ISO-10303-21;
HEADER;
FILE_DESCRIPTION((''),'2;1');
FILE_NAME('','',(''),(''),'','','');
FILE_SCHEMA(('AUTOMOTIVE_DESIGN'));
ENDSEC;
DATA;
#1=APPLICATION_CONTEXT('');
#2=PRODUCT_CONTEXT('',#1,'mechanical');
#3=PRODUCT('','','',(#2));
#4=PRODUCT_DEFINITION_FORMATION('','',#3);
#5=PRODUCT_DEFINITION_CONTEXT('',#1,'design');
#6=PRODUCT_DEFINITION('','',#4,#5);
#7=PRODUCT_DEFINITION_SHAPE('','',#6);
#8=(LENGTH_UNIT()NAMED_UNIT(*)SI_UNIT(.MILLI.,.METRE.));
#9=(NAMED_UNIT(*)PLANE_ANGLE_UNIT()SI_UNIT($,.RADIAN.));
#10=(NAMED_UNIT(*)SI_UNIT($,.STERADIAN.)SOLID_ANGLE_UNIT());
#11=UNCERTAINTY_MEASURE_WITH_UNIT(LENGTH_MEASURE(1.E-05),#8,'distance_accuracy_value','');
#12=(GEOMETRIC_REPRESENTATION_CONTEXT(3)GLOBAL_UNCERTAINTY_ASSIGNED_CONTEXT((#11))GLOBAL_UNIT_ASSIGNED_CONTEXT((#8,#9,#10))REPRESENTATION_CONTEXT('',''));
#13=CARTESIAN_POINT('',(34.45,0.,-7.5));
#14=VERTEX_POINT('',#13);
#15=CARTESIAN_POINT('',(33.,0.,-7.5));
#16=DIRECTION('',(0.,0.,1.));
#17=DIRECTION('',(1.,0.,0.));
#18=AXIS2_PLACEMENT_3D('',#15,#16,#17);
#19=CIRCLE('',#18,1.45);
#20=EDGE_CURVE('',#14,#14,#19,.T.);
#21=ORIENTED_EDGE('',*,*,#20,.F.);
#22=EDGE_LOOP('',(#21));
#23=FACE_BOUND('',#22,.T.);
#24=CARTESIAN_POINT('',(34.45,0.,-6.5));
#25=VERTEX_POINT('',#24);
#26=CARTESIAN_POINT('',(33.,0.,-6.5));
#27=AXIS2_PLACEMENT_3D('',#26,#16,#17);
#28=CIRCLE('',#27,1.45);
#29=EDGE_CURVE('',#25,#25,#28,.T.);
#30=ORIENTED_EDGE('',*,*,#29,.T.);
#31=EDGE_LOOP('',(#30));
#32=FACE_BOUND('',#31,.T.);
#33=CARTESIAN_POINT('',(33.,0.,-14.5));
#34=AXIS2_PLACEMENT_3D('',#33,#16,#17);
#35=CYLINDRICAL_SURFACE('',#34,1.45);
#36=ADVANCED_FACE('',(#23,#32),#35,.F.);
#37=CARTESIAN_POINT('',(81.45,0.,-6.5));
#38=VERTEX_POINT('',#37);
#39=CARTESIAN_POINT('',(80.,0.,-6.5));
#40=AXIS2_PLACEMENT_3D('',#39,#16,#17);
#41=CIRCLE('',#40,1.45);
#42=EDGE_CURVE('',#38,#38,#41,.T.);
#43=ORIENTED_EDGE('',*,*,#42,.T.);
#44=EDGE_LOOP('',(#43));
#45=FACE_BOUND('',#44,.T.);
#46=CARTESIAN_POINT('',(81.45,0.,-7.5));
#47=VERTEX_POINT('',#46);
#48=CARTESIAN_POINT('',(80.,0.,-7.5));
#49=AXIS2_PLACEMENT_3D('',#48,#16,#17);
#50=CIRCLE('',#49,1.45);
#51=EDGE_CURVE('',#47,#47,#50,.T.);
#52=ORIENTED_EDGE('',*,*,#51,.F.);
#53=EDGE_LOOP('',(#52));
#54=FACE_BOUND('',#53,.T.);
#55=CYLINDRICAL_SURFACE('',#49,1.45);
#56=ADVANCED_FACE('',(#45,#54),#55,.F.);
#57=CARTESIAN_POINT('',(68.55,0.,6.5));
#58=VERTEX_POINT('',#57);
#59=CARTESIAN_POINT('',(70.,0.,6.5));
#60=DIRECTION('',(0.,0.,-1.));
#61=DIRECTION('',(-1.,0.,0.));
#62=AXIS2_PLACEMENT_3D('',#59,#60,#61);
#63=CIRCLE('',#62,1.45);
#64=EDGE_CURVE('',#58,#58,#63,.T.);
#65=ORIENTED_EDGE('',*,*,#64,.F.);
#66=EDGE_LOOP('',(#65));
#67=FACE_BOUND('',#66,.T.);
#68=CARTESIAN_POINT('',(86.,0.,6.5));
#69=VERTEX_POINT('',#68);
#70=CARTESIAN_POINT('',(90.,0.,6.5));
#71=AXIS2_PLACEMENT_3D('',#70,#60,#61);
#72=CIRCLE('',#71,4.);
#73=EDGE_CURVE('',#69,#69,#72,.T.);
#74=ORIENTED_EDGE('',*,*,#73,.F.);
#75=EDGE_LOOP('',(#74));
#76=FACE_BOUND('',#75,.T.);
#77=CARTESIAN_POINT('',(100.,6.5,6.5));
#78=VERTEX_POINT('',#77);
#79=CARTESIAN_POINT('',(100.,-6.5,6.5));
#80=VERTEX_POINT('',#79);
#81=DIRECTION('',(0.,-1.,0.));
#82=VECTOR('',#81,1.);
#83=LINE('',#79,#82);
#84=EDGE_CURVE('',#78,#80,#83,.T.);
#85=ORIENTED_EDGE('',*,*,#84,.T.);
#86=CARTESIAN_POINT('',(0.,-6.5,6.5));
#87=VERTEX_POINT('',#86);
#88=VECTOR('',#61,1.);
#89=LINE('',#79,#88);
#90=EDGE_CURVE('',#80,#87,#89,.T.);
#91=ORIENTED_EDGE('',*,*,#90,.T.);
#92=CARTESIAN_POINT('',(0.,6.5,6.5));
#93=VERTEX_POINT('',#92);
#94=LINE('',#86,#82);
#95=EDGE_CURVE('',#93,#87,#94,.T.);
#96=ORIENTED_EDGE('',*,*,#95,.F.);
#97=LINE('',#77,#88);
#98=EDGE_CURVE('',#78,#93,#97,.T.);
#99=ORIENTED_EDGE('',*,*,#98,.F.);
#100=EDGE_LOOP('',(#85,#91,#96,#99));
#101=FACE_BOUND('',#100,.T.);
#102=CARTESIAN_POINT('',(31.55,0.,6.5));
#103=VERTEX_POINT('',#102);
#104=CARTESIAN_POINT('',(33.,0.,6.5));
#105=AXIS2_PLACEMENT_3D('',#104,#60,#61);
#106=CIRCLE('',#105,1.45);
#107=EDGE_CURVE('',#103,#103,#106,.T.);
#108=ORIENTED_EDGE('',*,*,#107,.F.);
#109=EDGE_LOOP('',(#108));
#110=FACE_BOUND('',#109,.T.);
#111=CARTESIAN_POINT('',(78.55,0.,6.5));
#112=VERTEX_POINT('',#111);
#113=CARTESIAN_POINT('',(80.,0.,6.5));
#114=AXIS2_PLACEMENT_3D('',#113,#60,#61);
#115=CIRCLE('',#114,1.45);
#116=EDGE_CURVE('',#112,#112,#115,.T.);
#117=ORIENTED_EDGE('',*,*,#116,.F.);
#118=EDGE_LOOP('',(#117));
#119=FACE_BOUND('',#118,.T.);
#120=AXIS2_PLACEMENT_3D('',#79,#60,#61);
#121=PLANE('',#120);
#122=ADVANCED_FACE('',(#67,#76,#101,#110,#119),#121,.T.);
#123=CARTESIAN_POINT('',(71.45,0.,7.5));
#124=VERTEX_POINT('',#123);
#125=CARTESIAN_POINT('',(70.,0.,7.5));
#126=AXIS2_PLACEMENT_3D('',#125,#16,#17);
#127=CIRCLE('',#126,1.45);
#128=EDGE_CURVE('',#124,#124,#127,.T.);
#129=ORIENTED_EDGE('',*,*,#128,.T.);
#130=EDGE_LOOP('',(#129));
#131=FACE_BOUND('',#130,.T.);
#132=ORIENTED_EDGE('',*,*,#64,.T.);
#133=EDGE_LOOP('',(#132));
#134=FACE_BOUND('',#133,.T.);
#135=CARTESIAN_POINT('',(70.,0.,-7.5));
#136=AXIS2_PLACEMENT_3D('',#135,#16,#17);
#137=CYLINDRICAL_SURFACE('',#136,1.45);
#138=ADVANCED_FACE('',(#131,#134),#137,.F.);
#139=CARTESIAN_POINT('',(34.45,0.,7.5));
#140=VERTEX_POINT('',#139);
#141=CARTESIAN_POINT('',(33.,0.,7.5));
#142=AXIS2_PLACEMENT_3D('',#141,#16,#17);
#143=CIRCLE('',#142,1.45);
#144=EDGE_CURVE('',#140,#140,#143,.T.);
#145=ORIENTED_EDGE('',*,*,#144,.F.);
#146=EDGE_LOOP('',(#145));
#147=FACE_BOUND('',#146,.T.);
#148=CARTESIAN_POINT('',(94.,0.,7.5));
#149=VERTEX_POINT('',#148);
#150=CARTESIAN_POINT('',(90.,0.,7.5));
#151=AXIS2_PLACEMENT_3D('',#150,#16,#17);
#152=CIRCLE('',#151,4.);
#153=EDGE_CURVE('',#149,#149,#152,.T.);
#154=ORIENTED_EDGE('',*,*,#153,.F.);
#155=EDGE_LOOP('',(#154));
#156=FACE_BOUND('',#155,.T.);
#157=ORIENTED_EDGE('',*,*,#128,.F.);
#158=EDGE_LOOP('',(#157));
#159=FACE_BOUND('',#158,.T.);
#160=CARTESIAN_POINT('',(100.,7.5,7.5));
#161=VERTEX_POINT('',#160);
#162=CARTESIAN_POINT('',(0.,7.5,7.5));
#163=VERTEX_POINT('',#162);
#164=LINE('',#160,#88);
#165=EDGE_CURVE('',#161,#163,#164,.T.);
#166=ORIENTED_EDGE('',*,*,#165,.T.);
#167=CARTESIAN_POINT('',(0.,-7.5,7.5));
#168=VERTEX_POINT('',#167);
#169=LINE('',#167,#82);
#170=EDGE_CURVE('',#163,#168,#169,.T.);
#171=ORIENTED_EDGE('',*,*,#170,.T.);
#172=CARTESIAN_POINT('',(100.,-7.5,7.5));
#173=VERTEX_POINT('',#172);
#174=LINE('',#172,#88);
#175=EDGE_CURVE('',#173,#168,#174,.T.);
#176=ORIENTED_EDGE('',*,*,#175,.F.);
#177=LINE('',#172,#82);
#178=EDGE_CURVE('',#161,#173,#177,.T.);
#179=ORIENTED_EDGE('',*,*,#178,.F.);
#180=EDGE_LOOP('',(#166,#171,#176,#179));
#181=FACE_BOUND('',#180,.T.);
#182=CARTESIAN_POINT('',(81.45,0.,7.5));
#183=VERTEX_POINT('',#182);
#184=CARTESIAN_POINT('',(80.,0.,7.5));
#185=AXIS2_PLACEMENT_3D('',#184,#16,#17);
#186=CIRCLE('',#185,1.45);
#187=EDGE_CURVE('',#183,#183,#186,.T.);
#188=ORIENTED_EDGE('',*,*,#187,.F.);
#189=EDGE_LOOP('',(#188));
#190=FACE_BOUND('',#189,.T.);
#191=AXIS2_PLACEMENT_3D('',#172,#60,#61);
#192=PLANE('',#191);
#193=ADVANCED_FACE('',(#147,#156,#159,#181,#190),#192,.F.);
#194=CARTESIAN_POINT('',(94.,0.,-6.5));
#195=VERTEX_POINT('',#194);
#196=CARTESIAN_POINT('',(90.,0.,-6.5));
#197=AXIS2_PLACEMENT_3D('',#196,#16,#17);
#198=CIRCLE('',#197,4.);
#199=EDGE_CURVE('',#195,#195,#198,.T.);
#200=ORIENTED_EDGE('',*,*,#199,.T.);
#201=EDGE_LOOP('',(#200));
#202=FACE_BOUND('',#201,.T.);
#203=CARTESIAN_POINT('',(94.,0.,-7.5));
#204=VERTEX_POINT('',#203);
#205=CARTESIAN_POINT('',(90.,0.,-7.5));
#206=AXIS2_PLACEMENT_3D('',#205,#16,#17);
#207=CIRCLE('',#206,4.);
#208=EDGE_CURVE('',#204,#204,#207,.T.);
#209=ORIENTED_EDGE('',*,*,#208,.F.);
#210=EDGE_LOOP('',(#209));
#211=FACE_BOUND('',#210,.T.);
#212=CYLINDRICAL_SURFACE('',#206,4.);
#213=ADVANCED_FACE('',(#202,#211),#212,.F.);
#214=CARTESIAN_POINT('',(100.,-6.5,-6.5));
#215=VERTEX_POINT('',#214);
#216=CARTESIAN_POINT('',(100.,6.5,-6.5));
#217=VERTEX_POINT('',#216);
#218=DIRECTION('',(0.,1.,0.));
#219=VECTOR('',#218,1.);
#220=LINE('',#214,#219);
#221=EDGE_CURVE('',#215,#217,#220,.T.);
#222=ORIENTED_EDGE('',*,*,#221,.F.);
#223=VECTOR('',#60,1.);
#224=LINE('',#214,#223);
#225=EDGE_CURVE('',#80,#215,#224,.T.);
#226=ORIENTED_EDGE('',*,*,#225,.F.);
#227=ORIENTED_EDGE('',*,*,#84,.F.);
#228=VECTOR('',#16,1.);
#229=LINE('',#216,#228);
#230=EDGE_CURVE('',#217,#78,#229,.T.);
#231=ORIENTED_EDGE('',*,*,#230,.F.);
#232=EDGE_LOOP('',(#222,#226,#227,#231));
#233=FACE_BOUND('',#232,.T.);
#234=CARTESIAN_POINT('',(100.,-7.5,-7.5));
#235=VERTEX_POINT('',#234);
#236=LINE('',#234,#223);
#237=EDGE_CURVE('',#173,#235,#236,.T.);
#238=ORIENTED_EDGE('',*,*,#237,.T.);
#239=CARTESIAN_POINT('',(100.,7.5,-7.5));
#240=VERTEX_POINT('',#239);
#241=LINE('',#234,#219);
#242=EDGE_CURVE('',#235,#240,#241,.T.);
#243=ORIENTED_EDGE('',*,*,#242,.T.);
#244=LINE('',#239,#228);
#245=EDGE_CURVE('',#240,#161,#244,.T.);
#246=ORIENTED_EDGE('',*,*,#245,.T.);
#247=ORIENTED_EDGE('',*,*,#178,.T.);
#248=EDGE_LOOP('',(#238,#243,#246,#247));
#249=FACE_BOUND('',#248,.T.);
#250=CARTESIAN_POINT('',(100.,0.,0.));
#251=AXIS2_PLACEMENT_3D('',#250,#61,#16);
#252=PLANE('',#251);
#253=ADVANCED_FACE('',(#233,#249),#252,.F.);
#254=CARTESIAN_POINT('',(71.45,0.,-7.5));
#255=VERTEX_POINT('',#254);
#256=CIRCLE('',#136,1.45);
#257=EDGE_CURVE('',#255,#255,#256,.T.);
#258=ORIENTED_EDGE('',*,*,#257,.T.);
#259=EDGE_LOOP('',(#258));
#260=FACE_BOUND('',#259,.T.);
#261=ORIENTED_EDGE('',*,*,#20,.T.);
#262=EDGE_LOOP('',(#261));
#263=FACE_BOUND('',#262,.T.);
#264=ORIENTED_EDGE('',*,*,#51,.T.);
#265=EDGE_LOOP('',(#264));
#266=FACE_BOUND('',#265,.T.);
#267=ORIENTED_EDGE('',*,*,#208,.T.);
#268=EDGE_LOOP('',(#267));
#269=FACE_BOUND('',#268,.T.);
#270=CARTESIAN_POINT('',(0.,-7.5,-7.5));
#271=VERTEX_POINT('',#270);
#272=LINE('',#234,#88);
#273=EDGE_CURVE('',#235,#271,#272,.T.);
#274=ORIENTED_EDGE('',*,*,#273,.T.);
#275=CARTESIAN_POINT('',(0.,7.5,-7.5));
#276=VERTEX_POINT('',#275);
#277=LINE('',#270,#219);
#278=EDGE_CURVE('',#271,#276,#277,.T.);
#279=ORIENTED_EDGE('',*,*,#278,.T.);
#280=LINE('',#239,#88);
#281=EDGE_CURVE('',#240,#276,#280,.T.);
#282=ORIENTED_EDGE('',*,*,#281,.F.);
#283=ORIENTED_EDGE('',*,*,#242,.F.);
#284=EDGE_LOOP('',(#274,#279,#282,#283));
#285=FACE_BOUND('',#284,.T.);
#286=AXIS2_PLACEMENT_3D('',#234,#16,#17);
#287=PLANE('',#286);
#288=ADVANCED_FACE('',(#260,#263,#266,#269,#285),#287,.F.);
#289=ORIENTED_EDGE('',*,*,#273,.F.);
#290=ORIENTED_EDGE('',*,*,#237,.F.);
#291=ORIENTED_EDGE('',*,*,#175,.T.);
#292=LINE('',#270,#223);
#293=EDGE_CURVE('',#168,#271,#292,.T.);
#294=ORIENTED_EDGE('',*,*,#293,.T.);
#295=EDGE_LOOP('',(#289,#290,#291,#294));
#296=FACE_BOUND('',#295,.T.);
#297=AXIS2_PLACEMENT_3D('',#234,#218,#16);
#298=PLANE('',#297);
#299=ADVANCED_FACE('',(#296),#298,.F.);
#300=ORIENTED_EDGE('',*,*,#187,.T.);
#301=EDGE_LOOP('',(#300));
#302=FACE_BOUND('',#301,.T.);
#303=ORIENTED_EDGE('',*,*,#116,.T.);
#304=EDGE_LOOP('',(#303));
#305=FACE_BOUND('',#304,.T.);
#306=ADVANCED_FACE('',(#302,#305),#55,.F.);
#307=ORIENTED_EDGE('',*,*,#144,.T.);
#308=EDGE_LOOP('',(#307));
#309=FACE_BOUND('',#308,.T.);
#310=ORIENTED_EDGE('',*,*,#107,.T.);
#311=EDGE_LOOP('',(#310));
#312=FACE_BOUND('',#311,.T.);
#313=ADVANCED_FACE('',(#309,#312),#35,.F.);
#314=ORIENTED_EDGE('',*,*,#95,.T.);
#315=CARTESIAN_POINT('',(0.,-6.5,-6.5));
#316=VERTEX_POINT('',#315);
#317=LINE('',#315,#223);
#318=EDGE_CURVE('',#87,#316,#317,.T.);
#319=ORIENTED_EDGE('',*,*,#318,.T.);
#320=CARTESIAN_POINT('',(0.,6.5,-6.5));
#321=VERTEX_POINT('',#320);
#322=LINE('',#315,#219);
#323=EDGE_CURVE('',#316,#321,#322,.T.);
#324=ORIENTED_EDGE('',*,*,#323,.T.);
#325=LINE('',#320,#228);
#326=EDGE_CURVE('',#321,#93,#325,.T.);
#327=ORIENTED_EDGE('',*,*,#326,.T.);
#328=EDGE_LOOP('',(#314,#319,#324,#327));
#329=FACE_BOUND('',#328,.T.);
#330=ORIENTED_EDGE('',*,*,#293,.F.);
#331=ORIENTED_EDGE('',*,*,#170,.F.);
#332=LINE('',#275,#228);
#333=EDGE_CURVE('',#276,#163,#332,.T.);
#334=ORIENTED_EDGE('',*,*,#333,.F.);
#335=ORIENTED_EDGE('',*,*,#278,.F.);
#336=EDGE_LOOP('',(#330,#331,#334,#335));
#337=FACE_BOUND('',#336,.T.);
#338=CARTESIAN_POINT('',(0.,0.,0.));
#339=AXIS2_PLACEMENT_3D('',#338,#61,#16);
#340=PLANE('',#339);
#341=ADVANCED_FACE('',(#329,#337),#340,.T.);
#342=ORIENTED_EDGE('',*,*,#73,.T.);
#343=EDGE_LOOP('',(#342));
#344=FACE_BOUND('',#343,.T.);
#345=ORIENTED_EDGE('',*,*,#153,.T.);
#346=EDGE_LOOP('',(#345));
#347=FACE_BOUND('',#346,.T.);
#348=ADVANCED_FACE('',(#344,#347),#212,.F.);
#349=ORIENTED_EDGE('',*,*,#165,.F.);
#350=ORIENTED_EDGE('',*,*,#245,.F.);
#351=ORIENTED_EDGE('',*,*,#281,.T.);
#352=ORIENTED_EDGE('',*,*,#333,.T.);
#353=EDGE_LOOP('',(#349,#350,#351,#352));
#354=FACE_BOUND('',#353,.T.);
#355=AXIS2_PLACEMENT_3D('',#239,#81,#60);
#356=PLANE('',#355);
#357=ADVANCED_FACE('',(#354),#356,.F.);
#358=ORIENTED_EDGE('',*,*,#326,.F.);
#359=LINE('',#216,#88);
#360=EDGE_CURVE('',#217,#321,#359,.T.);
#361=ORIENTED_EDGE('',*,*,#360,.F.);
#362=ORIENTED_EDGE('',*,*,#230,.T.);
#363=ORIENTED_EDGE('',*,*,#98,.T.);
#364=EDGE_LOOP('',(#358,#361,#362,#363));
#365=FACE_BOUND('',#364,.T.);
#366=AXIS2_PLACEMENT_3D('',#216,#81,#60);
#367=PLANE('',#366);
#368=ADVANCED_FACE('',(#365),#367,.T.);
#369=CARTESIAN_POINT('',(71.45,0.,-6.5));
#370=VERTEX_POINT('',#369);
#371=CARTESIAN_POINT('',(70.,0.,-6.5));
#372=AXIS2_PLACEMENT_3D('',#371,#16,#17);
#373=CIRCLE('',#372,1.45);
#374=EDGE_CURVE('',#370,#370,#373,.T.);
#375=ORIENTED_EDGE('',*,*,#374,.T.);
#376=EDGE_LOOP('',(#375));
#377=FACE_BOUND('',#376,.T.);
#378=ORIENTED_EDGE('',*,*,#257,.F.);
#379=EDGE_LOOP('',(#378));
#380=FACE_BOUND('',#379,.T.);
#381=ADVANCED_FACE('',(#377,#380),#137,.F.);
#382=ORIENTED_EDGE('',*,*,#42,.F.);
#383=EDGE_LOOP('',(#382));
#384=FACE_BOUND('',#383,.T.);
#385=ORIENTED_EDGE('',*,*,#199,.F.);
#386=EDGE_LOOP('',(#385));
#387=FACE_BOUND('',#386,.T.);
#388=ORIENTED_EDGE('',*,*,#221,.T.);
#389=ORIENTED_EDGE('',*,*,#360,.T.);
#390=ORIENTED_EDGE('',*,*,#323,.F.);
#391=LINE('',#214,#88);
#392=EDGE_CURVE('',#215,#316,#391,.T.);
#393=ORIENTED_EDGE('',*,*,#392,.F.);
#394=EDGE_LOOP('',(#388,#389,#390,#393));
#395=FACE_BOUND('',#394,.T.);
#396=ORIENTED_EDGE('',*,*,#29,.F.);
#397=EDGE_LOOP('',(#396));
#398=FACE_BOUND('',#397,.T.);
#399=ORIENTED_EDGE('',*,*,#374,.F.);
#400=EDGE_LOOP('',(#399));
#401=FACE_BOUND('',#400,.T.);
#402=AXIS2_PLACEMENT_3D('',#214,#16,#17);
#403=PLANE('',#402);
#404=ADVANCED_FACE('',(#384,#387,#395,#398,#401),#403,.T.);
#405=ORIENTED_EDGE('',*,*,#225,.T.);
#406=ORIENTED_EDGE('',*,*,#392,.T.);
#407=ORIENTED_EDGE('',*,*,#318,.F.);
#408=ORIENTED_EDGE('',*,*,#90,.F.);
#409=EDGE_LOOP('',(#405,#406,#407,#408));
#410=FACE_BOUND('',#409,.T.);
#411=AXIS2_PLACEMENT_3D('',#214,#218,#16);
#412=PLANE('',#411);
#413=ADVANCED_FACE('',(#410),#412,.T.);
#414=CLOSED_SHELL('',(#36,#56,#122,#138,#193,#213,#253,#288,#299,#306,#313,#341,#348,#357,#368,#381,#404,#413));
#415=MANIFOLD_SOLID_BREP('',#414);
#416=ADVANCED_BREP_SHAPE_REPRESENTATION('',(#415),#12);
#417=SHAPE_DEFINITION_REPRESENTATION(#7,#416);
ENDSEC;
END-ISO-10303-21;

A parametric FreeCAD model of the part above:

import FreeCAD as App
import Part
import Sketcher

doc = App.newDocument("Part")
body = doc.addObject("PartDesign::Body", "Body")

# Sketch on YZ plane
sketch1 = body.newObject("Sketcher::SketchObject", "Sketch")
sketch1.AttachmentSupport = (doc.getObject("YZ_Plane"), [""])
sketch1.MapMode = "FlatFace"
sketch1.addGeometry([
    Part.LineSegment(App.Vector(-8, 8, 0), App.Vector(-8, -8, 0)),  # 0
    Part.LineSegment(App.Vector(-8, -8, 0), App.Vector(8, -8, 0)),  # 1
    Part.LineSegment(App.Vector(8, -8, 0), App.Vector(8, 8, 0)),  # 2
    Part.LineSegment(App.Vector(8, 8, 0), App.Vector(-8, 8, 0)),  # 3
    Part.LineSegment(App.Vector(6, -6, 0), App.Vector(-6, -6, 0)),  # 4
    Part.LineSegment(App.Vector(-6, -6, 0), App.Vector(-6, 6, 0)),  # 5
    Part.LineSegment(App.Vector(-6, 6, 0), App.Vector(6, 6, 0)),  # 6
    Part.LineSegment(App.Vector(6, 6, 0), App.Vector(6, -6, 0)),  # 7
], False)
sketch1.addConstraint([
    Sketcher.Constraint("Coincident", 0, 2, 1, 1),
    Sketcher.Constraint("Coincident", 1, 2, 2, 1),
    Sketcher.Constraint("Coincident", 2, 2, 3, 1),
    Sketcher.Constraint("Coincident", 3, 2, 0, 1),
    Sketcher.Constraint("Coincident", 4, 2, 5, 1),
    Sketcher.Constraint("Coincident", 5, 2, 6, 1),
    Sketcher.Constraint("Coincident", 6, 2, 7, 1),
    Sketcher.Constraint("Coincident", 7, 2, 4, 1),
    Sketcher.Constraint("Vertical", 0),
    Sketcher.Constraint("Horizontal", 1),
    Sketcher.Constraint("Vertical", 2),
    Sketcher.Constraint("Horizontal", 3),
    Sketcher.Constraint("Horizontal", 4),
    Sketcher.Constraint("Vertical", 5),
    Sketcher.Constraint("Horizontal", 6),
    Sketcher.Constraint("Vertical", 7),
    Sketcher.Constraint("Symmetric", 0, 2, 2, 2, -1, 1),
    Sketcher.Constraint("Symmetric", 4, 2, 6, 2, -1, 1),
    Sketcher.Constraint("Equal", 3, 0),
    Sketcher.Constraint("Equal", 6, 5),
    Sketcher.Constraint("DistanceX", 1, 1, 1, 2, 15.0),
    Sketcher.Constraint("DistanceX", 4, 2, 4, 1, 13.0),
])
pad1 = body.newObject("PartDesign::Pad", "Pad")
pad1.Profile = sketch1
pad1.Length = 100

# Sketch on XY plane
sketch2 = body.newObject("Sketcher::SketchObject", "Sketch001")
sketch2.AttachmentSupport = (doc.getObject("XY_Plane"), [""])
sketch2.MapMode = "FlatFace"
sketch2.AttachmentOffset = App.Placement(App.Vector(0, 0, 7.5), App.Rotation())
sketch2.addGeometry(Part.Circle(App.Vector(33, 0, 0), App.Vector(0, 0, 1), 1.4), False)
sketch2.addConstraint([
    Sketcher.Constraint("PointOnObject", 0, 3, -1),
    Sketcher.Constraint("Diameter", 0, 2.9),
    Sketcher.Constraint("DistanceX", -1, 1, 0, 3, 33.0),
])
pocket1 = body.newObject("PartDesign::Pocket", "Pocket")
pocket1.Profile = sketch2
pocket1.Length = 22

# Sketch on XY plane
sketch3 = body.newObject("Sketcher::SketchObject", "Sketch002")
sketch3.AttachmentSupport = (doc.getObject("XY_Plane"), [""])
sketch3.MapMode = "FlatFace"
sketch3.AttachmentOffset = App.Placement(App.Vector(0, 0, 7.5), App.Rotation())
sketch3.addGeometry([
    Part.Circle(App.Vector(90, 0, 0), App.Vector(0, 0, 1), 4),
    Part.Circle(App.Vector(80, 0, 0), App.Vector(0, 0, 1), 1.4),
    Part.Circle(App.Vector(70, 0, 0), App.Vector(0, 0, 1), 1.4),
], False)
sketch3.addConstraint([
    Sketcher.Constraint("Equal", 1, 2),
    Sketcher.Constraint("PointOnObject", 0, 3, -1),
    Sketcher.Constraint("PointOnObject", 1, 3, -1),
    Sketcher.Constraint("PointOnObject", 2, 3, -1),
    Sketcher.Constraint("Diameter", 0, 8.0),
    Sketcher.Constraint("Diameter", 1, 2.9),
    Sketcher.Constraint("DistanceX", -1, 1, 0, 3, 90.0),
    Sketcher.Constraint("DistanceX", -1, 1, 1, 3, 80.0),
    Sketcher.Constraint("DistanceX", -1, 1, 2, 3, 70.0),
])
pocket2 = body.newObject("PartDesign::Pocket", "Pocket001")
pocket2.Profile = sketch3
pocket2.Type = "ThroughAll"

doc.recompute()
